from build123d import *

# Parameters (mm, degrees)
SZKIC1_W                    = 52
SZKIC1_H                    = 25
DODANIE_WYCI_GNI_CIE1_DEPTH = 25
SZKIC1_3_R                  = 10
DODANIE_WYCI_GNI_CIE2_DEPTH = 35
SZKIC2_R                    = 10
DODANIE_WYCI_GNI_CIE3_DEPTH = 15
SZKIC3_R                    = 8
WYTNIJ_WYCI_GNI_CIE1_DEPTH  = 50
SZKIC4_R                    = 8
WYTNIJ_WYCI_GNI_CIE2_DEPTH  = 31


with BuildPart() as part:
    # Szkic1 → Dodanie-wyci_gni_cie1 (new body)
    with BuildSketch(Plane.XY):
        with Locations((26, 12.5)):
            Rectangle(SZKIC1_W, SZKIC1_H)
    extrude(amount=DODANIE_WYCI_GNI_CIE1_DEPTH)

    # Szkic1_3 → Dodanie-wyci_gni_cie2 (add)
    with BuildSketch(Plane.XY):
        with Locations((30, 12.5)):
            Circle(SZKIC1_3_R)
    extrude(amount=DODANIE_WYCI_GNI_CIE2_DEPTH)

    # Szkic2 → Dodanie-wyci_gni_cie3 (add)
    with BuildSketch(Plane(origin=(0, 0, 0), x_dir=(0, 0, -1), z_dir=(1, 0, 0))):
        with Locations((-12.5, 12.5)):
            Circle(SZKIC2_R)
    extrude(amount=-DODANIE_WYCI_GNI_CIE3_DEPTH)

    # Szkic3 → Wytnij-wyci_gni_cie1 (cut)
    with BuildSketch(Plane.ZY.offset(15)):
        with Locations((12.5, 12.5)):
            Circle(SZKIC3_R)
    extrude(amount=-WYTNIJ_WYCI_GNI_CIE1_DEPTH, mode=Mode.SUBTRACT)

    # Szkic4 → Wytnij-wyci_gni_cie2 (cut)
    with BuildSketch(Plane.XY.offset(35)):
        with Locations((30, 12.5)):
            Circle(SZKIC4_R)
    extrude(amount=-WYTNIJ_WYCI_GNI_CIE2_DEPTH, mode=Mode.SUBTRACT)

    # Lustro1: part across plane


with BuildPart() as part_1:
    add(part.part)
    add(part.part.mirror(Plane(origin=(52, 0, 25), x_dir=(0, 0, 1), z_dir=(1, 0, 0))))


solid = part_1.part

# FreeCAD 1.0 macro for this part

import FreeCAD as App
import Part
import Sketcher

V = App.Vector


def add_polygon(sketch, points):
    """Adds a closed chain of lines whose ends are joined by coincident constraints."""
    first, n = sketch.GeometryCount, len(points)
    for a, b in zip(points, points[1:] + points[:1]):
        sketch.addGeometry(Part.LineSegment(App.Vector(*a, 0), App.Vector(*b, 0)), False)
    for i in range(n):
        sketch.addConstraint(Sketcher.Constraint("Coincident", first + i, 2, first + (i + 1) % n, 1))

doc = App.newDocument("Part")
params = doc.addObject("Spreadsheet::Sheet", "Params")
for row, (alias, value) in enumerate([
    ("sketch1_width", "52 mm"),
    ("sketch1_height", "25 mm"),
    ("pad1_length", "25 mm"),
    ("sketch2_diameter", "20 mm"),
    ("pad2_length", "35 mm"),
    ("sketch3_diameter", "20 mm"),
    ("pad3_length", "15 mm"),
    ("sketch4_diameter", "16 mm"),
    ("pocket1_length", "50 mm"),
    ("sketch5_diameter", "16 mm"),
    ("pocket2_length", "31 mm"),
], start=1):
    params.set(f"A{row}", alias)
    params.set(f"B{row}", "=" + value)
    params.setAlias(f"B{row}", alias)

body = doc.addObject("PartDesign::Body", "Body")

sketch1 = body.newObject("Sketcher::SketchObject", "Sketch")
sketch1.AttachmentSupport = (doc.getObject("XY_Plane"), [""])
sketch1.MapMode = "FlatFace"
add_polygon(sketch1, [(0, 25), (0, 0), (52, 0), (52, 25)])
sketch1.addConstraint([
    Sketcher.Constraint("Vertical", 0),
    Sketcher.Constraint("Horizontal", 1),
    Sketcher.Constraint("Vertical", 2),
    Sketcher.Constraint("Horizontal", 3),
    Sketcher.Constraint("Coincident", 0, 2, -1, 1),
    Sketcher.Constraint("DistanceX", 1, 1, 1, 2, 52.0),
    Sketcher.Constraint("DistanceY", 0, 2, 0, 1, 25.0),
])
sketch1.setExpression("Constraints[9]", "Params.sketch1_width")
sketch1.setExpression("Constraints[10]", "Params.sketch1_height")
pad1 = body.newObject("PartDesign::Pad", "Pad")
pad1.Profile = sketch1
pad1.setExpression("Length", "Params.pad1_length")

sketch2 = body.newObject("Sketcher::SketchObject", "Sketch001")
sketch2.AttachmentSupport = (doc.getObject("XY_Plane"), [""])
sketch2.MapMode = "FlatFace"
sketch2.addGeometry(Part.Circle(V(30, 12, 0), V(0, 0, 1), 10), False)
sketch2.addConstraint([
    Sketcher.Constraint("Diameter", 0, 20.0),
    Sketcher.Constraint("DistanceX", -1, 1, 0, 3, 30.0),
    Sketcher.Constraint("DistanceY", -1, 1, 0, 3, 12.5),
])
sketch2.setExpression("Constraints[0]", "Params.sketch2_diameter")
pad2 = body.newObject("PartDesign::Pad", "Pad001")
pad2.Profile = sketch2
pad2.setExpression("Length", "Params.pad2_length")

sketch3 = body.newObject("Sketcher::SketchObject", "Sketch002")
sketch3.AttachmentSupport = (doc.getObject("YZ_Plane"), [""])
sketch3.MapMode = "FlatFace"
sketch3.addGeometry(Part.Circle(V(12, 12, 0), V(0, 0, 1), 10), False)
sketch3.addConstraint([
    Sketcher.Constraint("Diameter", 0, 20.0),
    Sketcher.Constraint("DistanceX", -1, 1, 0, 3, 12.5),
    Sketcher.Constraint("DistanceY", -1, 1, 0, 3, 12.5),
])
sketch3.setExpression("Constraints[0]", "Params.sketch3_diameter")
pad3 = body.newObject("PartDesign::Pad", "Pad002")
pad3.Profile = sketch3
pad3.setExpression("Length", "Params.pad3_length")
pad3.Reversed = True

sketch4 = body.newObject("Sketcher::SketchObject", "Sketch003")
sketch4.AttachmentSupport = (doc.getObject("YZ_Plane"), [""])
sketch4.MapMode = "FlatFace"
sketch4.AttachmentOffset = App.Placement(V(0, 0, -15), App.Rotation())
sketch4.addGeometry(Part.Circle(V(12, 12, 0), V(0, 0, 1), 8), False)
sketch4.addConstraint([
    Sketcher.Constraint("Diameter", 0, 16.0),
    Sketcher.Constraint("DistanceX", -1, 1, 0, 3, 12.5),
    Sketcher.Constraint("DistanceY", -1, 1, 0, 3, 12.5),
])
sketch4.setExpression("Constraints[0]", "Params.sketch4_diameter")
pocket1 = body.newObject("PartDesign::Pocket", "Pocket")
pocket1.Profile = sketch4
pocket1.setExpression("Length", "Params.pocket1_length")
pocket1.Reversed = True

sketch5 = body.newObject("Sketcher::SketchObject", "Sketch004")
sketch5.AttachmentSupport = (doc.getObject("XY_Plane"), [""])
sketch5.MapMode = "FlatFace"
sketch5.AttachmentOffset = App.Placement(V(0, 0, 35), App.Rotation())
sketch5.addGeometry(Part.Circle(V(30, 12, 0), V(0, 0, 1), 8), False)
sketch5.addConstraint([
    Sketcher.Constraint("Diameter", 0, 16.0),
    Sketcher.Constraint("DistanceX", -1, 1, 0, 3, 30.0),
    Sketcher.Constraint("DistanceY", -1, 1, 0, 3, 12.5),
])
sketch5.setExpression("Constraints[0]", "Params.sketch5_diameter")
pocket2 = body.newObject("PartDesign::Pocket", "Pocket001")
pocket2.Profile = sketch5
pocket2.setExpression("Length", "Params.pocket2_length")
body2 = doc.addObject("PartDesign::Body", "Body001")
doc.recompute()

body2.BaseFeature = body
doc.recompute()

mirroring = doc.addObject("Part::Mirroring", "Mirroring")
mirroring.Source = body
mirroring.Base = V(52, 0, 25)
mirroring.Normal = V(1, 0, 0)
body3 = doc.addObject("PartDesign::Body", "Body002")
body3.BaseFeature = mirroring
boolean = body2.newObject("PartDesign::Boolean", "Boolean")
boolean.Type = "Fuse"
boolean.addObjects([body3])
doc.recompute()
mirroring.Visibility = False

doc.recompute()
